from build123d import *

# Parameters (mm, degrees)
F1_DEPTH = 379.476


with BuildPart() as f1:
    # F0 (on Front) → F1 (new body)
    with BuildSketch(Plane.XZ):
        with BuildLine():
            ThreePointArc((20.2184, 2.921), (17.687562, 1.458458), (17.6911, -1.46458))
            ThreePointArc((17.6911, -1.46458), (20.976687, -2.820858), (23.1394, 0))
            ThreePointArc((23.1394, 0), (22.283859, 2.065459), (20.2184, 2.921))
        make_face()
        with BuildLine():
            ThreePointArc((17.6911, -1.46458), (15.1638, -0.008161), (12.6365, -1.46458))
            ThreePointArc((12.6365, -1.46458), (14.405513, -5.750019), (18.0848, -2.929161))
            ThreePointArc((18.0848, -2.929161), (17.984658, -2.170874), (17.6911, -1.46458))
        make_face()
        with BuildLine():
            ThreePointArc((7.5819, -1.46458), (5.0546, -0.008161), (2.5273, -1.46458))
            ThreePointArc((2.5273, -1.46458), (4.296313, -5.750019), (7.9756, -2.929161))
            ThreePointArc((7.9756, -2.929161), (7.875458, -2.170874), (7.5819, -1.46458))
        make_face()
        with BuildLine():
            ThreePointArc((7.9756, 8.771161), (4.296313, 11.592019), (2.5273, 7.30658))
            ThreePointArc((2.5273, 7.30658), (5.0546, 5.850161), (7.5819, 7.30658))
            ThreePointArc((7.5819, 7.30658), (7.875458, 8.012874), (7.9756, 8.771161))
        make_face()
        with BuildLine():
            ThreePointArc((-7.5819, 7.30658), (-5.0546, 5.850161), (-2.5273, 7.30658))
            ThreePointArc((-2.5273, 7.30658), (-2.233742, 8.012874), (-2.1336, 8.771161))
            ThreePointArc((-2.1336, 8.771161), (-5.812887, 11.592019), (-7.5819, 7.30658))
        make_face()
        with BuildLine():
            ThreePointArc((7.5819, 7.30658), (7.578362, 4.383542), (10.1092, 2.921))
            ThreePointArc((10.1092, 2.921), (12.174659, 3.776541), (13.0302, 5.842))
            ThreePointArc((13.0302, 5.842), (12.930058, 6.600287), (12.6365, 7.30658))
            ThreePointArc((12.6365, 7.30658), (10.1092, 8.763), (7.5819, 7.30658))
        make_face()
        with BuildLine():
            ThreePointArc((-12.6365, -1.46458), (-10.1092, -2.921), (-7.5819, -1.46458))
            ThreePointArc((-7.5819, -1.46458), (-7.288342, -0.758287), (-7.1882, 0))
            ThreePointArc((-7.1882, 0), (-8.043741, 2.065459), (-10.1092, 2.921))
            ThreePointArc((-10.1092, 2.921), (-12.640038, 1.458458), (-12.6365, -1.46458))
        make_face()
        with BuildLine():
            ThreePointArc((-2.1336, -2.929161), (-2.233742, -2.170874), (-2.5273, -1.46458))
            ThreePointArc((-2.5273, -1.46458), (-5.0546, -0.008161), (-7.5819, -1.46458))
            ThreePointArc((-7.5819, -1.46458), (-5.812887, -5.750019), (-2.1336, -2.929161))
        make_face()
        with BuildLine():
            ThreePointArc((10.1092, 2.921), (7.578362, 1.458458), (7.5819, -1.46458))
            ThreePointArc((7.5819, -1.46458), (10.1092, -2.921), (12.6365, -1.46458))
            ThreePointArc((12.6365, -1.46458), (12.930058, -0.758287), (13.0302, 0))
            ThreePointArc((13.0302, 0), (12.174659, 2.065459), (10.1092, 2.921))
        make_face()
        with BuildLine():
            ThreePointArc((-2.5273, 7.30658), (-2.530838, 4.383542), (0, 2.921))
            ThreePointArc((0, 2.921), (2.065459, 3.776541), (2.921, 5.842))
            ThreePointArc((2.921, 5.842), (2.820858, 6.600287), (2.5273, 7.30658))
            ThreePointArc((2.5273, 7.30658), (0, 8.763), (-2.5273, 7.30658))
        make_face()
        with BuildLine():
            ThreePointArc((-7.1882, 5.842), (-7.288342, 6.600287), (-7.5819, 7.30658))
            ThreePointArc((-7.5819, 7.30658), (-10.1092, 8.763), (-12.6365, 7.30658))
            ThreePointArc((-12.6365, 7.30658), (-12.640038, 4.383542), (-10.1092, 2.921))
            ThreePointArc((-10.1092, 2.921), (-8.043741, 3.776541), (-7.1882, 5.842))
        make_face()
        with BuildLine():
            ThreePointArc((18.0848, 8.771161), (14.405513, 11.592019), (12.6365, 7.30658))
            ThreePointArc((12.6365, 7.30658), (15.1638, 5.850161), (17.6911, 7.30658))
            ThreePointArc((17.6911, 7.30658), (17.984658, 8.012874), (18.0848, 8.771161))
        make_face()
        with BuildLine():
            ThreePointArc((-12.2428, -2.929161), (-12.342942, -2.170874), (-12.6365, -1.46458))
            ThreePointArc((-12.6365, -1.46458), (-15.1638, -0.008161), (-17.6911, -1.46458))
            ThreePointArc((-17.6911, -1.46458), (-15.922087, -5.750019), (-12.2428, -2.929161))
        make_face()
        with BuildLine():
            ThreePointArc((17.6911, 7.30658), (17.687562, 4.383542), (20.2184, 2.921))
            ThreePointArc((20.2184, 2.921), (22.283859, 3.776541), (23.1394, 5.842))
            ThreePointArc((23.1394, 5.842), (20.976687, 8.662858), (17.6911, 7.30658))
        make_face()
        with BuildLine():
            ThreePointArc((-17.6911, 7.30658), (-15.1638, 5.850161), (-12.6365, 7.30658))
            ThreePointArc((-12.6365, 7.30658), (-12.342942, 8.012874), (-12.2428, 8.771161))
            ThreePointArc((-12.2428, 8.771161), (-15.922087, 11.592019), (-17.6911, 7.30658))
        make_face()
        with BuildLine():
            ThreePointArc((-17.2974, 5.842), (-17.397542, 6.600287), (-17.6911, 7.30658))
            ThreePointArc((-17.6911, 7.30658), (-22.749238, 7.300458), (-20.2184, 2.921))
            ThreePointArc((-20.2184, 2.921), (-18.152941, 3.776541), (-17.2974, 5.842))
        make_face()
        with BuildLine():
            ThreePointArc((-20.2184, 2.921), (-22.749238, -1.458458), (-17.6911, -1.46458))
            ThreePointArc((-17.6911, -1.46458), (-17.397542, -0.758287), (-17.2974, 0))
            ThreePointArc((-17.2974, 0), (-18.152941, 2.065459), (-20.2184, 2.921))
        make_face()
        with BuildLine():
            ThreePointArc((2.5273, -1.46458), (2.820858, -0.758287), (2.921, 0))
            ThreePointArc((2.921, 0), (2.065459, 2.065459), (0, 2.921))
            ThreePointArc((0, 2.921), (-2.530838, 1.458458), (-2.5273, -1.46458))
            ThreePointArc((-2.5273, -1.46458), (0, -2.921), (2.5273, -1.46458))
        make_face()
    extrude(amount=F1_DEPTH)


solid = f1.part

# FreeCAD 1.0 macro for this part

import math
import FreeCAD as App
import Part
import Sketcher
Q = App.Units.Quantity

doc = App.newDocument("Part")
body = doc.addObject("PartDesign::Body", "Body")
body.AllowCompound = True

# Sketch on XZ plane
sketch1 = body.newObject("Sketcher::SketchObject", "Sketch")
sketch1.AttachmentSupport = (doc.getObject("XZ_Plane"), [""])
sketch1.MapMode = "FlatFace"
sketch1.addGeometry([
    Part.ArcOfCircle(Part.Circle(App.Vector(20.2, 0, 0), App.Vector(0, 0, 1), 2.9), math.radians(90), math.radians(210)),  # 0
    Part.ArcOfCircle(Part.Circle(App.Vector(20.2, 0, 0), App.Vector(0, 0, 1), 2.9), math.radians(-150), math.radians(0)),  # 1
    Part.ArcOfCircle(Part.Circle(App.Vector(20.2, 0, 0), App.Vector(0, 0, 1), 2.9), math.radians(0), math.radians(90)),  # 2
    Part.ArcOfCircle(Part.Circle(App.Vector(15.2, -2.9, 0), App.Vector(0, 0, 1), 2.9), math.radians(30), math.radians(150)),  # 3
    Part.ArcOfCircle(Part.Circle(App.Vector(15.2, -2.9, 0), App.Vector(0, 0, 1), 2.9), math.radians(150), math.radians(360)),  # 4
    Part.ArcOfCircle(Part.Circle(App.Vector(15.2, -2.9, 0), App.Vector(0, 0, 1), 2.9), math.radians(0), math.radians(30)),  # 5
    Part.ArcOfCircle(Part.Circle(App.Vector(5.1, -2.9, 0), App.Vector(0, 0, 1), 2.9), math.radians(30), math.radians(150)),  # 6
    Part.ArcOfCircle(Part.Circle(App.Vector(5.1, -2.9, 0), App.Vector(0, 0, 1), 2.9), math.radians(150), math.radians(360)),  # 7
    Part.ArcOfCircle(Part.Circle(App.Vector(5.1, -2.9, 0), App.Vector(0, 0, 1), 2.9), math.radians(0), math.radians(30)),  # 8
    Part.ArcOfCircle(Part.Circle(App.Vector(5.1, 8.8, 0), App.Vector(0, 0, 1), 2.9), math.radians(0), math.radians(210)),  # 9
    Part.ArcOfCircle(Part.Circle(App.Vector(5.1, 8.8, 0), App.Vector(0, 0, 1), 2.9), math.radians(-150), math.radians(-30)),  # 10
    Part.ArcOfCircle(Part.Circle(App.Vector(5.1, 8.8, 0), App.Vector(0, 0, 1), 2.9), math.radians(-30), math.radians(0)),  # 11
    Part.ArcOfCircle(Part.Circle(App.Vector(-5.1, 8.8, 0), App.Vector(0, 0, 1), 2.9), math.radians(-150), math.radians(-30)),  # 12
    Part.ArcOfCircle(Part.Circle(App.Vector(-5.1, 8.8, 0), App.Vector(0, 0, 1), 2.9), math.radians(-30), math.radians(0)),  # 13
    Part.ArcOfCircle(Part.Circle(App.Vector(-5.1, 8.8, 0), App.Vector(0, 0, 1), 2.9), math.radians(0), math.radians(210)),  # 14
    Part.ArcOfCircle(Part.Circle(App.Vector(10.1, 5.8, 0), App.Vector(0, 0, 1), 2.9), math.radians(150), math.radians(270)),  # 15
    Part.ArcOfCircle(Part.Circle(App.Vector(10.1, 5.8, 0), App.Vector(0, 0, 1), 2.9), math.radians(-90), math.radians(0)),  # 16
    Part.ArcOfCircle(Part.Circle(App.Vector(10.1, 5.8, 0), App.Vector(0, 0, 1), 2.9), math.radians(0), math.radians(30)),  # 17
    Part.ArcOfCircle(Part.Circle(App.Vector(10.1, 5.8, 0), App.Vector(0, 0, 1), 2.9), math.radians(30), math.radians(150)),  # 18
    Part.ArcOfCircle(Part.Circle(App.Vector(-10.1, 0, 0), App.Vector(0, 0, 1), 2.9), math.radians(-150), math.radians(-30)),  # 19
    Part.ArcOfCircle(Part.Circle(App.Vector(-10.1, 0, 0), App.Vector(0, 0, 1), 2.9), math.radians(-30), math.radians(0)),  # 20
    Part.ArcOfCircle(Part.Circle(App.Vector(-10.1, 0, 0), App.Vector(0, 0, 1), 2.9), math.radians(0), math.radians(90)),  # 21
    Part.ArcOfCircle(Part.Circle(App.Vector(-10.1, 0, 0), App.Vector(0, 0, 1), 2.9), math.radians(90), math.radians(210)),  # 22
    Part.ArcOfCircle(Part.Circle(App.Vector(-5.1, -2.9, 0), App.Vector(0, 0, 1), 2.9), math.radians(0), math.radians(30)),  # 23
    Part.ArcOfCircle(Part.Circle(App.Vector(-5.1, -2.9, 0), App.Vector(0, 0, 1), 2.9), math.radians(30), math.radians(150)),  # 24
    Part.ArcOfCircle(Part.Circle(App.Vector(-5.1, -2.9, 0), App.Vector(0, 0, 1), 2.9), math.radians(150), math.radians(360)),  # 25
    Part.ArcOfCircle(Part.Circle(App.Vector(10.1, 0, 0), App.Vector(0, 0, 1), 2.9), math.radians(90), math.radians(210)),  # 26
    Part.ArcOfCircle(Part.Circle(App.Vector(10.1, 0, 0), App.Vector(0, 0, 1), 2.9), math.radians(-150), math.radians(-30)),  # 27
    Part.ArcOfCircle(Part.Circle(App.Vector(10.1, 0, 0), App.Vector(0, 0, 1), 2.9), math.radians(-30), math.radians(0)),  # 28
    Part.ArcOfCircle(Part.Circle(App.Vector(10.1, 0, 0), App.Vector(0, 0, 1), 2.9), math.radians(0), math.radians(90)),  # 29
    Part.ArcOfCircle(Part.Circle(App.Vector(0, 5.8, 0), App.Vector(0, 0, 1), 2.9), math.radians(150), math.radians(270)),  # 30
    Part.ArcOfCircle(Part.Circle(App.Vector(0, 5.8, 0), App.Vector(0, 0, 1), 2.9), math.radians(-90), math.radians(0)),  # 31
    Part.ArcOfCircle(Part.Circle(App.Vector(0, 5.8, 0), App.Vector(0, 0, 1), 2.9), math.radians(0), math.radians(30)),  # 32
    Part.ArcOfCircle(Part.Circle(App.Vector(0, 5.8, 0), App.Vector(0, 0, 1), 2.9), math.radians(30), math.radians(150)),  # 33
    Part.ArcOfCircle(Part.Circle(App.Vector(-10.1, 5.8, 0), App.Vector(0, 0, 1), 2.9), math.radians(0), math.radians(30)),  # 34
    Part.ArcOfCircle(Part.Circle(App.Vector(-10.1, 5.8, 0), App.Vector(0, 0, 1), 2.9), math.radians(30), math.radians(150)),  # 35
    Part.ArcOfCircle(Part.Circle(App.Vector(-10.1, 5.8, 0), App.Vector(0, 0, 1), 2.9), math.radians(150), math.radians(270)),  # 36
    Part.ArcOfCircle(Part.Circle(App.Vector(-10.1, 5.8, 0), App.Vector(0, 0, 1), 2.9), math.radians(-90), math.radians(0)),  # 37
    Part.ArcOfCircle(Part.Circle(App.Vector(15.2, 8.8, 0), App.Vector(0, 0, 1), 2.9), math.radians(0), math.radians(210)),  # 38
    Part.ArcOfCircle(Part.Circle(App.Vector(15.2, 8.8, 0), App.Vector(0, 0, 1), 2.9), math.radians(-150), math.radians(-30)),  # 39
    Part.ArcOfCircle(Part.Circle(App.Vector(15.2, 8.8, 0), App.Vector(0, 0, 1), 2.9), math.radians(-30), math.radians(0)),  # 40
    Part.ArcOfCircle(Part.Circle(App.Vector(-15.2, -2.9, 0), App.Vector(0, 0, 1), 2.9), math.radians(0), math.radians(30)),  # 41
    Part.ArcOfCircle(Part.Circle(App.Vector(-15.2, -2.9, 0), App.Vector(0, 0, 1), 2.9), math.radians(30), math.radians(150)),  # 42
    Part.ArcOfCircle(Part.Circle(App.Vector(-15.2, -2.9, 0), App.Vector(0, 0, 1), 2.9), math.radians(150), math.radians(360)),  # 43
    Part.ArcOfCircle(Part.Circle(App.Vector(20.2, 5.8, 0), App.Vector(0, 0, 1), 2.9), math.radians(150), math.radians(270)),  # 44
    Part.ArcOfCircle(Part.Circle(App.Vector(20.2, 5.8, 0), App.Vector(0, 0, 1), 2.9), math.radians(-90), math.radians(0)),  # 45
    Part.ArcOfCircle(Part.Circle(App.Vector(20.2, 5.8, 0), App.Vector(0, 0, 1), 2.9), math.radians(0), math.radians(150)),  # 46
    Part.ArcOfCircle(Part.Circle(App.Vector(-15.2, 8.8, 0), App.Vector(0, 0, 1), 2.9), math.radians(-150), math.radians(-30)),  # 47
    Part.ArcOfCircle(Part.Circle(App.Vector(-15.2, 8.8, 0), App.Vector(0, 0, 1), 2.9), math.radians(-30), math.radians(0)),  # 48
    Part.ArcOfCircle(Part.Circle(App.Vector(-15.2, 8.8, 0), App.Vector(0, 0, 1), 2.9), math.radians(0), math.radians(210)),  # 49
    Part.ArcOfCircle(Part.Circle(App.Vector(-20.2, 5.8, 0), App.Vector(0, 0, 1), 2.9), math.radians(0), math.radians(30)),  # 50
    Part.ArcOfCircle(Part.Circle(App.Vector(-20.2, 5.8, 0), App.Vector(0, 0, 1), 2.9), math.radians(30), math.radians(270)),  # 51
    Part.ArcOfCircle(Part.Circle(App.Vector(-20.2, 5.8, 0), App.Vector(0, 0, 1), 2.9), math.radians(-90), math.radians(0)),  # 52
    Part.ArcOfCircle(Part.Circle(App.Vector(-20.2, 0, 0), App.Vector(0, 0, 1), 2.9), math.radians(90), math.radians(330)),  # 53
    Part.ArcOfCircle(Part.Circle(App.Vector(-20.2, 0, 0), App.Vector(0, 0, 1), 2.9), math.radians(-30), math.radians(0)),  # 54
    Part.ArcOfCircle(Part.Circle(App.Vector(-20.2, 0, 0), App.Vector(0, 0, 1), 2.9), math.radians(0), math.radians(90)),  # 55
    Part.ArcOfCircle(Part.Circle(App.Vector(0, 0, 0), App.Vector(0, 0, 1), 2.9), math.radians(-30), math.radians(0)),  # 56
    Part.ArcOfCircle(Part.Circle(App.Vector(0, 0, 0), App.Vector(0, 0, 1), 2.9), math.radians(0), math.radians(90)),  # 57
    Part.ArcOfCircle(Part.Circle(App.Vector(0, 0, 0), App.Vector(0, 0, 1), 2.9), math.radians(90), math.radians(210)),  # 58
    Part.ArcOfCircle(Part.Circle(App.Vector(0, 0, 0), App.Vector(0, 0, 1), 2.9), math.radians(-150), math.radians(-30)),  # 59
], False)
sketch1.addConstraint([
    Sketcher.Constraint("Tangent", 0, 2, 1, 1),
    Sketcher.Constraint("Tangent", 1, 2, 2, 1),
    Sketcher.Constraint("Tangent", 2, 2, 0, 1),
    Sketcher.Constraint("Tangent", 3, 2, 4, 1),
    Sketcher.Constraint("Tangent", 4, 2, 5, 1),
    Sketcher.Constraint("Tangent", 5, 2, 3, 1),
    Sketcher.Constraint("Tangent", 6, 2, 7, 1),
    Sketcher.Constraint("Tangent", 7, 2, 8, 1),
    Sketcher.Constraint("Tangent", 8, 2, 6, 1),
    Sketcher.Constraint("Tangent", 9, 2, 10, 1),
    Sketcher.Constraint("Tangent", 10, 2, 11, 1),
    Sketcher.Constraint("Tangent", 11, 2, 9, 1),
    Sketcher.Constraint("Tangent", 12, 2, 13, 1),
    Sketcher.Constraint("Tangent", 13, 2, 14, 1),
    Sketcher.Constraint("Tangent", 14, 2, 12, 1),
    Sketcher.Constraint("Tangent", 15, 2, 16, 1),
    Sketcher.Constraint("Tangent", 16, 2, 17, 1),
    Sketcher.Constraint("Tangent", 17, 2, 18, 1),
    Sketcher.Constraint("Tangent", 18, 2, 15, 1),
    Sketcher.Constraint("Tangent", 19, 2, 20, 1),
    Sketcher.Constraint("Tangent", 20, 2, 21, 1),
    Sketcher.Constraint("Tangent", 21, 2, 22, 1),
    Sketcher.Constraint("Tangent", 22, 2, 19, 1),
    Sketcher.Constraint("Tangent", 23, 2, 24, 1),
    Sketcher.Constraint("Tangent", 24, 2, 25, 1),
    Sketcher.Constraint("Tangent", 25, 2, 23, 1),
    Sketcher.Constraint("Tangent", 26, 2, 27, 1),
    Sketcher.Constraint("Tangent", 27, 2, 28, 1),
    Sketcher.Constraint("Tangent", 28, 2, 29, 1),
    Sketcher.Constraint("Tangent", 29, 2, 26, 1),
    Sketcher.Constraint("Tangent", 30, 2, 31, 1),
    Sketcher.Constraint("Tangent", 31, 2, 32, 1),
    Sketcher.Constraint("Tangent", 32, 2, 33, 1),
    Sketcher.Constraint("Tangent", 33, 2, 30, 1),
    Sketcher.Constraint("Tangent", 34, 2, 35, 1),
    Sketcher.Constraint("Tangent", 35, 2, 36, 1),
    Sketcher.Constraint("Tangent", 36, 2, 37, 1),
    Sketcher.Constraint("Tangent", 37, 2, 34, 1),
    Sketcher.Constraint("Tangent", 38, 2, 39, 1),
    Sketcher.Constraint("Tangent", 39, 2, 40, 1),
    Sketcher.Constraint("Tangent", 40, 2, 38, 1),
    Sketcher.Constraint("Tangent", 41, 2, 42, 1),
    Sketcher.Constraint("Tangent", 42, 2, 43, 1),
    Sketcher.Constraint("Tangent", 43, 2, 41, 1),
    Sketcher.Constraint("Tangent", 44, 2, 45, 1),
    Sketcher.Constraint("Tangent", 45, 2, 46, 1),
    Sketcher.Constraint("Tangent", 46, 2, 44, 1),
    Sketcher.Constraint("Tangent", 47, 2, 48, 1),
    Sketcher.Constraint("Tangent", 48, 2, 49, 1),
    Sketcher.Constraint("Tangent", 49, 2, 47, 1),
    Sketcher.Constraint("Tangent", 50, 2, 51, 1),
    Sketcher.Constraint("Tangent", 51, 2, 52, 1),
    Sketcher.Constraint("Tangent", 52, 2, 50, 1),
    Sketcher.Constraint("Tangent", 53, 2, 54, 1),
    Sketcher.Constraint("Tangent", 54, 2, 55, 1),
    Sketcher.Constraint("Tangent", 55, 2, 53, 1),
    Sketcher.Constraint("Tangent", 56, 2, 57, 1),
    Sketcher.Constraint("Tangent", 57, 2, 58, 1),
    Sketcher.Constraint("Tangent", 58, 2, 59, 1),
    Sketcher.Constraint("Tangent", 59, 2, 56, 1),
    Sketcher.Constraint("Coincident", 56, 3, -1, 1),
    Sketcher.Constraint("Coincident", 5, 2, 0, 2),
    Sketcher.Constraint("Coincident", 18, 2, 10, 2),
    Sketcher.Constraint("Coincident", 24, 2, 19, 2),
    Sketcher.Constraint("Coincident", 26, 2, 8, 2),
    Sketcher.Constraint("Coincident", 27, 2, 3, 2),
    Sketcher.Constraint("Coincident", 29, 2, 15, 2),
    Sketcher.Constraint("Coincident", 32, 2, 9, 2),
    Sketcher.Constraint("Coincident", 33, 2, 12, 2),
    Sketcher.Constraint("Coincident", 34, 2, 14, 2),
    Sketcher.Constraint("Coincident", 36, 2, 21, 2),
    Sketcher.Constraint("Coincident", 38, 2, 17, 2),
    Sketcher.Constraint("Coincident", 41, 2, 22, 2),
    Sketcher.Constraint("Coincident", 44, 2, 2, 2),
    Sketcher.Constraint("Coincident", 46, 2, 39, 2),
    Sketcher.Constraint("Coincident", 47, 2, 35, 2),
    Sketcher.Constraint("Coincident", 50, 2, 49, 2),
    Sketcher.Constraint("Coincident", 53, 2, 42, 2),
    Sketcher.Constraint("Coincident", 55, 2, 51, 2),
    Sketcher.Constraint("Coincident", 57, 2, 30, 2),
    Sketcher.Constraint("Coincident", 58, 2, 23, 2),
    Sketcher.Constraint("Coincident", 59, 2, 6, 2),
    Sketcher.Constraint("Equal", 2, 3),
    Sketcher.Constraint("Equal", 4, 6),
    Sketcher.Constraint("Equal", 7, 9),
    Sketcher.Constraint("Equal", 10, 12),
    Sketcher.Constraint("Equal", 14, 15),
    Sketcher.Constraint("Equal", 15, 16),
    Sketcher.Constraint("Equal", 18, 19),
    Sketcher.Constraint("Equal", 17, 20),
    Sketcher.Constraint("Equal", 13, 23),
    Sketcher.Constraint("Equal", 25, 26),
    Sketcher.Constraint("Equal", 26, 27),
    Sketcher.Constraint("Equal", 29, 30),
    Sketcher.Constraint("Equal", 30, 31),
    Sketcher.Constraint("Equal", 32, 34),
    Sketcher.Constraint("Equal", 33, 35),
    Sketcher.Constraint("Equal", 37, 38),
    Sketcher.Constraint("Equal", 40, 41),
    Sketcher.Constraint("Equal", 43, 44),
    Sketcher.Constraint("Equal", 46, 47),
    Sketcher.Constraint("Equal", 34, 50),
    Sketcher.Constraint("Equal", 52, 53),
    Sketcher.Constraint("Equal", 54, 56),
    Sketcher.Constraint("Equal", 55, 57),
    Sketcher.Constraint("Symmetric", 19, 3, 26, 3, -1, 1),
    Sketcher.Constraint("Symmetric", 0, 3, 53, 3, -1, 1),
    Sketcher.Constraint("Symmetric", 9, 3, 12, 3, -2),
    Sketcher.Constraint("Symmetric", 3, 3, 42, 3, -2),
    Sketcher.Constraint("Symmetric", 39, 2, 49, 2, -2),
    Sketcher.Constraint("PointOnObject", 1, 2, -1),
    Sketcher.Constraint("PointOnObject", 20, 2, -1),
    Sketcher.Constraint("PointOnObject", 28, 2, -1),
    Sketcher.Constraint("PointOnObject", 30, 2, -2),
    Sketcher.Constraint("PointOnObject", 54, 2, -1),
    Sketcher.Constraint("PointOnObject", 56, 2, -1),
    Sketcher.Constraint("Horizontal", 4, 3, 6, 3),
    Sketcher.Constraint("Horizontal", 14, 3, 38, 3),
    Sketcher.Constraint("Horizontal", 0, 2, 3, 2),
    Sketcher.Constraint("Horizontal", 43, 3, 4, 2),
    Sketcher.Constraint("Horizontal", 5, 2, 6, 2),
    Sketcher.Constraint("Horizontal", 4, 2, 7, 2),
    Sketcher.Constraint("Horizontal", 6, 2, 8, 2),
    Sketcher.Constraint("Horizontal", 9, 2, 10, 2),
    Sketcher.Constraint("Horizontal", 49, 3, 11, 2),
    Sketcher.Constraint("Horizontal", 10, 2, 12, 2),
    Sketcher.Constraint("Horizontal", 11, 2, 13, 2),
    Sketcher.Constraint("Horizontal", 12, 2, 14, 2),
    Sketcher.Constraint("Horizontal", 52, 3, 16, 2),
    Sketcher.Constraint("Horizontal", 14, 2, 17, 2),
    Sketcher.Constraint("Horizontal", 8, 2, 19, 2),
    Sketcher.Constraint("Horizontal", 19, 2, 22, 2),
    Sketcher.Constraint("Horizontal", 22, 2, 23, 2),
    Sketcher.Constraint("Horizontal", 7, 2, 25, 2),
    Sketcher.Constraint("Horizontal", 16, 2, 31, 2),
    Sketcher.Constraint("Horizontal", 34, 2, 35, 2),
    Sketcher.Constraint("Horizontal", 31, 2, 37, 2),
    Sketcher.Constraint("Horizontal", 38, 2, 39, 2),
    Sketcher.Constraint("Horizontal", 13, 2, 40, 2),
    Sketcher.Constraint("Horizontal", 41, 2, 42, 2),
    Sketcher.Constraint("Horizontal", 25, 2, 43, 2),
    Sketcher.Constraint("Horizontal", 37, 2, 45, 2),
    Sketcher.Constraint("Horizontal", 40, 2, 48, 2),
    Sketcher.Constraint("Horizontal", 45, 2, 52, 2),
    Sketcher.Constraint("Vertical", 7, 3, 9, 3),
    Sketcher.Constraint("Vertical", 46, 3, 2, 2),
    Sketcher.Constraint("Vertical", 6, 2, 9, 2),
    Sketcher.Constraint("Vertical", 29, 3, 15, 2),
    Sketcher.Constraint("Vertical", 37, 3, 21, 2),
    Sketcher.Constraint("Vertical", 55, 3, 51, 2),
    Sketcher.Constraint("Radius", 0, Q("0.115 in")),
    Sketcher.Constraint("DistanceX", -1, 1, 0, 3, Q("0.796 in")),
    Sketcher.Constraint("DistanceX", -1, 1, 0, 2, Q("0.6965 in")),
])
pad1 = body.newObject("PartDesign::Pad", "Pad")
pad1.Profile = sketch1
pad1.Length = Q("14.94 in")

doc.recompute()
